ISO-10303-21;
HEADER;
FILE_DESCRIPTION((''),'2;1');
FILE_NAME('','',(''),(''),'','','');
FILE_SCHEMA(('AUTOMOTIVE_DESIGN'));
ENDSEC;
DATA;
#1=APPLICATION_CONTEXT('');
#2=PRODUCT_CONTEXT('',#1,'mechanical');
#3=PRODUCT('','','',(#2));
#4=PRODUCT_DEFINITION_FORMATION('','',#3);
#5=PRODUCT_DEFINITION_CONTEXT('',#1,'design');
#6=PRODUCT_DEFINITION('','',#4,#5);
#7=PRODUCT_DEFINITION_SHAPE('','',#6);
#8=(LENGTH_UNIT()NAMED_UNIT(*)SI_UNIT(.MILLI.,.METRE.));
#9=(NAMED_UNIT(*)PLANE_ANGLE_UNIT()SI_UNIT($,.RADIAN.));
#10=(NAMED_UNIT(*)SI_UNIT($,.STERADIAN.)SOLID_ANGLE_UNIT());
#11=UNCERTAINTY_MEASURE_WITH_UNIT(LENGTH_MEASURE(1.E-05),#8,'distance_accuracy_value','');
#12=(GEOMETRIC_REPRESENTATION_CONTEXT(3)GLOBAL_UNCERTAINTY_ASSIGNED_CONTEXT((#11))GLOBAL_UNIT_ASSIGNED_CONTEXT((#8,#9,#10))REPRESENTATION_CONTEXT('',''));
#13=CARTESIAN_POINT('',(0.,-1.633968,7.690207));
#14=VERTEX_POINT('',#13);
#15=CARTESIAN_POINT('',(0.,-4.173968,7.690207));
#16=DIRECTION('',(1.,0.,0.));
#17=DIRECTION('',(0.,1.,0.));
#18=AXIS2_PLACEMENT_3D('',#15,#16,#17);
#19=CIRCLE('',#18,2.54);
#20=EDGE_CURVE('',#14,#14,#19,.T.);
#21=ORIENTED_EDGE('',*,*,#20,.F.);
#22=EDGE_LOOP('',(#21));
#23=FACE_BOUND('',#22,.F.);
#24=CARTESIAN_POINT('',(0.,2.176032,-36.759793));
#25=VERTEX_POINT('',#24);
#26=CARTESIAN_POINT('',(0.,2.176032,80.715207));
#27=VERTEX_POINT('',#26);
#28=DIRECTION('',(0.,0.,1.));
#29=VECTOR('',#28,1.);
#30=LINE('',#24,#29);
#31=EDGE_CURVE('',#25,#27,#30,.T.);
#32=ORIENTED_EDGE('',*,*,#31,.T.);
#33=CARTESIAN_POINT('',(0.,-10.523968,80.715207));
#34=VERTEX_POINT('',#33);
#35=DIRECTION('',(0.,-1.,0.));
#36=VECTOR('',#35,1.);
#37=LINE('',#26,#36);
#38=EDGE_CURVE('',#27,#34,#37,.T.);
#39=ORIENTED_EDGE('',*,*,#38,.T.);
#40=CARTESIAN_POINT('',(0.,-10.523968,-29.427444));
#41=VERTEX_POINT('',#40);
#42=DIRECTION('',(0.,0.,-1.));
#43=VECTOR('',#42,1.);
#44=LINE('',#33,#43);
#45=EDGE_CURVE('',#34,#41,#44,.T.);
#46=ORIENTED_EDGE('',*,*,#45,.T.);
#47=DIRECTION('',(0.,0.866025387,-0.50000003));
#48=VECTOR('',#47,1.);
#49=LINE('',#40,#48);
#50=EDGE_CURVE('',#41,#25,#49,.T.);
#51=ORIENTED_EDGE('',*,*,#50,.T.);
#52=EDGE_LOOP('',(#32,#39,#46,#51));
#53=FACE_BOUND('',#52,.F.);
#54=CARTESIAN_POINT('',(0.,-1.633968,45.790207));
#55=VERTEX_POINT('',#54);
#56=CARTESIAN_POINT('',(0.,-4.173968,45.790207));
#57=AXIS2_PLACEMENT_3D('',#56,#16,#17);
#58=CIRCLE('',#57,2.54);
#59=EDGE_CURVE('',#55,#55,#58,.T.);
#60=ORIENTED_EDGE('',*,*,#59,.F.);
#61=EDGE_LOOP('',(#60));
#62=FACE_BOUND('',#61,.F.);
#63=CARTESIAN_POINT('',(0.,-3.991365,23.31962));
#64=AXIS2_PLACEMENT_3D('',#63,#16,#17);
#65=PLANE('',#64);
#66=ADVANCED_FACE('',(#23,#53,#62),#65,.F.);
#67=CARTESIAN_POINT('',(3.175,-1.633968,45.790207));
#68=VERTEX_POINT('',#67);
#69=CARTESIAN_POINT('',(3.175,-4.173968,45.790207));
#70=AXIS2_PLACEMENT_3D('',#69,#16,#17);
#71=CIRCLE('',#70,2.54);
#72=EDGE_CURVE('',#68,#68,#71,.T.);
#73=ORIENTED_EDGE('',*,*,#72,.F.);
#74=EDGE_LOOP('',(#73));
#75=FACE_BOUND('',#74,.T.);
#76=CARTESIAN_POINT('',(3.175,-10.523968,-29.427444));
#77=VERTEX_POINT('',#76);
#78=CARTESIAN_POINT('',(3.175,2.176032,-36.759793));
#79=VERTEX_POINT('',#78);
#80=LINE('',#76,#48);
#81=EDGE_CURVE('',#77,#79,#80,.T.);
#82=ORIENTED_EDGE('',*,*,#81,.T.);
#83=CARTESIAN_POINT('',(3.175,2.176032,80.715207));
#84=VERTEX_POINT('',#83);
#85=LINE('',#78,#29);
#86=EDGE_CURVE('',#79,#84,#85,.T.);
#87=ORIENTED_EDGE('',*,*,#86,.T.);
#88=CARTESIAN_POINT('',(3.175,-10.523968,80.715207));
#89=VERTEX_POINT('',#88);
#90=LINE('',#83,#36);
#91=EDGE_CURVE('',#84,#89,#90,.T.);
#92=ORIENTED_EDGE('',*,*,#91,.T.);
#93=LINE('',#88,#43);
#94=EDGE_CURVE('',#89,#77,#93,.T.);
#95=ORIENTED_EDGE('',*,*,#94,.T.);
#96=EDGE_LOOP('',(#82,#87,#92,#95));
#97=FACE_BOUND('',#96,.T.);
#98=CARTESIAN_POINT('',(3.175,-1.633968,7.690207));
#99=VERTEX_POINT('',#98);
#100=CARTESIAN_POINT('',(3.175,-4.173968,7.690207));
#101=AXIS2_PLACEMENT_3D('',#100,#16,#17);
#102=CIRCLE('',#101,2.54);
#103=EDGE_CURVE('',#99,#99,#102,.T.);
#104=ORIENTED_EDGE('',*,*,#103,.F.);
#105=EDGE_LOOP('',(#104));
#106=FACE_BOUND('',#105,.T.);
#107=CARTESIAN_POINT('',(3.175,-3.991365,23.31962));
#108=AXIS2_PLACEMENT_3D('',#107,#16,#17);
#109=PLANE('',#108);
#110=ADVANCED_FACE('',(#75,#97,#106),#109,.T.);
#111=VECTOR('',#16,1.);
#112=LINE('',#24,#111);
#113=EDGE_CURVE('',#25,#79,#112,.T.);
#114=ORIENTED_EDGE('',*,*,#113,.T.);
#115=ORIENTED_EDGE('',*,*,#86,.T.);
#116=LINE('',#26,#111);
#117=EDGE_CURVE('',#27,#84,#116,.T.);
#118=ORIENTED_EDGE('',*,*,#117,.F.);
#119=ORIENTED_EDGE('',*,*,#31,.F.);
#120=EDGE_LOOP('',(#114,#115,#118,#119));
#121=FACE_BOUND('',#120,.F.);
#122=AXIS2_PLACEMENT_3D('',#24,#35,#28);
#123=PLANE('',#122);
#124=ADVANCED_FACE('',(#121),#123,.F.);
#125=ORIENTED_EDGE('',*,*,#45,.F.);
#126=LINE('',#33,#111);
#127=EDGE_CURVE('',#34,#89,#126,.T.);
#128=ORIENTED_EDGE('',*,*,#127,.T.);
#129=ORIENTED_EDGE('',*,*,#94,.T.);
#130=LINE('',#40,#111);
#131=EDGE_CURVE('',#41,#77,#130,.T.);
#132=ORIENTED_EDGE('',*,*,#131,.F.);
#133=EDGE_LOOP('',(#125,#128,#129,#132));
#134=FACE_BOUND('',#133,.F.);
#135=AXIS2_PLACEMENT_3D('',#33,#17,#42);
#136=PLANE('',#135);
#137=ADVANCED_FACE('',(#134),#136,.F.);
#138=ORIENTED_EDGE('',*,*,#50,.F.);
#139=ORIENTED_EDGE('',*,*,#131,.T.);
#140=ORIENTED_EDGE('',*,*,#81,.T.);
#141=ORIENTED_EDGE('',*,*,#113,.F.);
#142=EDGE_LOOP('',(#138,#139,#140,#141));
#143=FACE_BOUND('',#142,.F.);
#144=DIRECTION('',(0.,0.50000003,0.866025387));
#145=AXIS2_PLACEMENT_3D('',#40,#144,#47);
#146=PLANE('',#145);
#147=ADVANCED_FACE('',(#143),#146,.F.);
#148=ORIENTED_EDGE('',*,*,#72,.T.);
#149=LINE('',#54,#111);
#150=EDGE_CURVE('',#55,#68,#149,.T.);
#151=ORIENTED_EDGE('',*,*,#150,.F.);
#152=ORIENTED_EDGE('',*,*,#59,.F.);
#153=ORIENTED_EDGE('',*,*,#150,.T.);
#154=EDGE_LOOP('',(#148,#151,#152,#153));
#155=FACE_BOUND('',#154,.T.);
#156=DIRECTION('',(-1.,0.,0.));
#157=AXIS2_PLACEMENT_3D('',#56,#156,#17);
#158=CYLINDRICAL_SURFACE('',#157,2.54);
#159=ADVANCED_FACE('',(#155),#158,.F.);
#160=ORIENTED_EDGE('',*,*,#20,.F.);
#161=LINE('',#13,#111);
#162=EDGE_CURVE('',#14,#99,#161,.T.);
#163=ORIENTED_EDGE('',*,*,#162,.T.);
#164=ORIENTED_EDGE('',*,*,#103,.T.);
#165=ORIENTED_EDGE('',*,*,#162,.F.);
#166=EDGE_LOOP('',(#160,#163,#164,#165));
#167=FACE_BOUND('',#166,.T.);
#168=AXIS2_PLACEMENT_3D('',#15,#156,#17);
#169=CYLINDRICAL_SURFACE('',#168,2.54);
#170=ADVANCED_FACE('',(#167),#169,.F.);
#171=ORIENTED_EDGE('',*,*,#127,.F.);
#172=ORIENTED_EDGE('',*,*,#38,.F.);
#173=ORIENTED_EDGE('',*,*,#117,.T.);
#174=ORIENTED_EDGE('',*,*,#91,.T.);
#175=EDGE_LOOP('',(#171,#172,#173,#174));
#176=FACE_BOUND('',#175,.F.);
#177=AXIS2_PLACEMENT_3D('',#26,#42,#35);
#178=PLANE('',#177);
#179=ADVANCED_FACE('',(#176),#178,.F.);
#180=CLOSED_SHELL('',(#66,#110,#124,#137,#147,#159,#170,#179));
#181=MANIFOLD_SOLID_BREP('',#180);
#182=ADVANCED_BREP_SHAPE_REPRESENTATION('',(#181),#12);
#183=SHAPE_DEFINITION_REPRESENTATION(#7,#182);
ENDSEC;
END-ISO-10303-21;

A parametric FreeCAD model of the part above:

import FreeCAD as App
import Part
import Sketcher
from FreeCAD import Vector
Q = App.Units.Quantity

doc = App.newDocument("Part")
body = doc.addObject("PartDesign::Body", "Body")

# Sketch on YZ plane
sketch1 = body.newObject("Sketcher::SketchObject", "Sketch")
sketch1.AttachmentSupport = (doc.getObject("YZ_Plane"), [""])
sketch1.MapMode = "FlatFace"
sketch1.addGeometry(Part.LineSegment(Vector(2.2, -36.8, 0), Vector(2.2, 80.7, 0)), False)
sketch1.addGeometry(Part.LineSegment(Vector(2.2, 80.7, 0), Vector(-10.5, 80.7, 0)), False)
sketch1.addGeometry(Part.LineSegment(Vector(-10.5, 80.7, 0), Vector(-10.5, -29.4, 0)), False)
sketch1.addGeometry(Part.LineSegment(Vector(-10.5, -29.4, 0), Vector(2.2, -36.8, 0)), False)
sketch1.addGeometry(Part.Circle(Vector(-4.2, 7.7, 0), Vector(0, 0, 1), 2.5), False)
sketch1.addGeometry(Part.Circle(Vector(-4.2, 45.8, 0), Vector(0, 0, 1), 2.5), False)
sketch1.addConstraint(Sketcher.Constraint("Coincident", 0, 2, 1, 1))
sketch1.addConstraint(Sketcher.Constraint("Coincident", 1, 2, 2, 1))
sketch1.addConstraint(Sketcher.Constraint("Coincident", 2, 2, 3, 1))
sketch1.addConstraint(Sketcher.Constraint("Coincident", 3, 2, 0, 1))
sketch1.addConstraint(Sketcher.Constraint("Vertical", 0))
sketch1.addConstraint(Sketcher.Constraint("Horizontal", 1))
sketch1.addConstraint(Sketcher.Constraint("Vertical", 2))
sketch1.addConstraint(Sketcher.Constraint("Equal", 4, 5))
sketch1.addConstraint(Sketcher.Constraint("Vertical", 4, 3, 5, 3))
sketch1.addConstraint(Sketcher.Constraint("Diameter", 4, Q("0.2 in")))
sketch1.addConstraint(Sketcher.Constraint("DistanceX", 1, 2, 1, 1, Q("0.5 in")))
sketch1.addConstraint(Sketcher.Constraint("Angle", 3, Q("-30.000002 deg")))
sketch1.addConstraint(Sketcher.Constraint("DistanceY", 4, 3, 5, 3, Q("1.5 in")))
sketch1.addConstraint(Sketcher.Constraint("DistanceY", 0, 1, 0, 2, Q("4.625 in")))
sketch1.addConstraint(Sketcher.Constraint("DistanceX", 5, 3, 0, 2, Q("0.25 in")))
sketch1.addConstraint(Sketcher.Constraint("DistanceY", 3, 2, 4, 3, Q("1.75 in")))
sketch1.addConstraint(Sketcher.Constraint("DistanceX", 4, 3, -1, 1, Q("4.173968 mm")))
sketch1.addConstraint(Sketcher.Constraint("DistanceY", -1, 1, 4, 3, Q("7.690207 mm")))
pad1 = body.newObject("PartDesign::Pad", "Pad")
pad1.Profile = sketch1
pad1.Length = Q("0.125 in")

doc.recompute()
